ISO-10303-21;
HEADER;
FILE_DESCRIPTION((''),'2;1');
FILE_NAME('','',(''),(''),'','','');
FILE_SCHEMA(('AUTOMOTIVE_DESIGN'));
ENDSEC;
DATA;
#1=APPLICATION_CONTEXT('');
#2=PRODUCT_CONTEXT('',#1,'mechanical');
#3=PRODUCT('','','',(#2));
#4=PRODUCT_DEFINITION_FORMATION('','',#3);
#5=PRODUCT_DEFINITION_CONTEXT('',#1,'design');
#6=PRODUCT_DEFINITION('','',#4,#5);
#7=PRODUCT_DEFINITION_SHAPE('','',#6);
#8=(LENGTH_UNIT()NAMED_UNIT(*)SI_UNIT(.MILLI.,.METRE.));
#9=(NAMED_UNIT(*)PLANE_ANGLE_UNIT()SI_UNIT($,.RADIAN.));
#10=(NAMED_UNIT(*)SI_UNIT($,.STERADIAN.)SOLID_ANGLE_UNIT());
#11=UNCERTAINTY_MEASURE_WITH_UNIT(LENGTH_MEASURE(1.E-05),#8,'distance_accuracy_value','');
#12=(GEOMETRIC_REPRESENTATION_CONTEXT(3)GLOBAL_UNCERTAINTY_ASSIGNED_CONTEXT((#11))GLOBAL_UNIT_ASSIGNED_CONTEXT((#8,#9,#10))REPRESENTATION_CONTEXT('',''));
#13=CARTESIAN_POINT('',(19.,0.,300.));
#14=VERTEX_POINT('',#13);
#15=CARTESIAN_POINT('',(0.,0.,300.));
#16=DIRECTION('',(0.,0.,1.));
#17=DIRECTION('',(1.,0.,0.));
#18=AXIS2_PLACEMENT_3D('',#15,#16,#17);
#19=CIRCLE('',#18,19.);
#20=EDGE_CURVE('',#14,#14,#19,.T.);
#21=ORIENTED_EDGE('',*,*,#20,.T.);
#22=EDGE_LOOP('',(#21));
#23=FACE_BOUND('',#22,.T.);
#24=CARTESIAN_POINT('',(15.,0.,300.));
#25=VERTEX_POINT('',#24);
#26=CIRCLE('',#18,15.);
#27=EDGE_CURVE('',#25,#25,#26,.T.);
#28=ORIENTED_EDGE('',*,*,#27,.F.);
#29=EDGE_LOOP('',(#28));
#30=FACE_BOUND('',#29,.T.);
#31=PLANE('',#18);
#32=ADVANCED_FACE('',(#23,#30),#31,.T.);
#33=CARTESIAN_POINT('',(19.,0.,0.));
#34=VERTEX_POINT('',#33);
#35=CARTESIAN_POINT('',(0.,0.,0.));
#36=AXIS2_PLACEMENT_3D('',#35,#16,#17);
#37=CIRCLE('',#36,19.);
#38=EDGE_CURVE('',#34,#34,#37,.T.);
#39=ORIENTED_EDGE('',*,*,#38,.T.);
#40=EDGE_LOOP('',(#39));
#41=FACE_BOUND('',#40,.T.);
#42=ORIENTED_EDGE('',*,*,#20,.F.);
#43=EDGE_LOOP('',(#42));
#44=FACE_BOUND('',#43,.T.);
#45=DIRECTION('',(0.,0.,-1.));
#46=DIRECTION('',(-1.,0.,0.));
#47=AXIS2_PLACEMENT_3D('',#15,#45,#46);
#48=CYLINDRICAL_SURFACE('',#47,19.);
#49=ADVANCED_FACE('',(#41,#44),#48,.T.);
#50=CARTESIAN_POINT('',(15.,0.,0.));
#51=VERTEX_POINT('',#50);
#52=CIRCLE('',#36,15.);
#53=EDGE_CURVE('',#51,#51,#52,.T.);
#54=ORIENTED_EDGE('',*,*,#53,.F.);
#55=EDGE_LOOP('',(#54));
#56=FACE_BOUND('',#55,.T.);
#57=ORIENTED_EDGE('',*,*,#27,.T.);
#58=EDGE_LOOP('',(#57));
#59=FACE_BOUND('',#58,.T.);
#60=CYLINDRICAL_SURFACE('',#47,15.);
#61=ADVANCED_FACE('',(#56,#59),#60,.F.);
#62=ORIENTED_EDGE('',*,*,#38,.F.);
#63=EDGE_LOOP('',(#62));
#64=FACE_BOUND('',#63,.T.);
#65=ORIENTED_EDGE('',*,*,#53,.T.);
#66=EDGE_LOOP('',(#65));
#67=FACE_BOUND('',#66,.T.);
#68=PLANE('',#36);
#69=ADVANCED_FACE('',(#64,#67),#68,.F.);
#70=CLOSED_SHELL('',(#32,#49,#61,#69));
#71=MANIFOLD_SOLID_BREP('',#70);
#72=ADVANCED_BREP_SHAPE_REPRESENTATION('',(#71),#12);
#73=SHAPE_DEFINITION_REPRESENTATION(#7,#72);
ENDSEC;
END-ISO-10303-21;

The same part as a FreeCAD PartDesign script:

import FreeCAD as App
import Part
import Sketcher
Q = App.Units.Quantity

doc = App.newDocument("Part")
params = doc.addObject("Spreadsheet::Sheet", "Params")
for row, (alias, value) in enumerate([
    ("sketch1_diameter", "38 mm"),
    ("sketch1_diameter2", "30 mm"),
    ("pad1_length", "300 mm"),
], start=1):
    params.set(f"A{row}", alias)
    params.set(f"B{row}", "=" + value)
    params.setAlias(f"B{row}", alias)

body = doc.addObject("PartDesign::Body", "Body")

sketch1 = body.newObject("Sketcher::SketchObject", "Sketch")
sketch1.AttachmentSupport = (doc.getObject("XY_Plane"), [""])
sketch1.MapMode = "FlatFace"
sketch1.addGeometry([
    Part.Circle(App.Vector(0, 0, 0), App.Vector(0, 0, 1), 19),
    Part.Circle(App.Vector(0, 0, 0), App.Vector(0, 0, 1), 15),
], False)
sketch1.addConstraint([
    Sketcher.Constraint("Coincident", 0, 3, -1, 1),
    Sketcher.Constraint("Coincident", 1, 3, -1, 1),
    Sketcher.Constraint("Diameter", 0, Q("38 mm")),
    Sketcher.Constraint("Diameter", 1, Q("30 mm")),
])
sketch1.setExpression("Constraints[2]", "Params.sketch1_diameter")
sketch1.setExpression("Constraints[3]", "Params.sketch1_diameter2")
pad1 = body.newObject("PartDesign::Pad", "Pad")
pad1.Profile = sketch1
pad1.setExpression("Length", "Params.pad1_length")

doc.recompute()
